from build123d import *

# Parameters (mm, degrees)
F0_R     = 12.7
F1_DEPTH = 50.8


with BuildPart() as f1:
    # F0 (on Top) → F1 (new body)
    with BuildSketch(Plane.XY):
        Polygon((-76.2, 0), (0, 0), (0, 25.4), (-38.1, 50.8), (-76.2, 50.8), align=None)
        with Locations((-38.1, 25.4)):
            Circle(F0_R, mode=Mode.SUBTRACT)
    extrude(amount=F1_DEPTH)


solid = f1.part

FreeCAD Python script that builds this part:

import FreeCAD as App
import Part
import Sketcher

V = App.Vector
Q = App.Units.Quantity

doc = App.newDocument("Part")
params = doc.addObject("Spreadsheet::Sheet", "Params")
for row, (alias, value) in enumerate([
    ("sketch1_diameter", "1 in"),
    ("sketch1_width", "3 in"),
    ("sketch1_height", "1 in"),
    ("sketch1_height2", "2 in"),
    ("sketch1_width2", "1.5 in"),
    ("pad1_length", "2 in"),
], start=1):
    params.set(f"A{row}", alias)
    params.set(f"B{row}", "=" + value)
    params.setAlias(f"B{row}", alias)

body = doc.addObject("PartDesign::Body", "Body")

# Sketch on XY plane
sketch1 = body.newObject("Sketcher::SketchObject", "Sketch")
sketch1.AttachmentSupport = (doc.getObject("XY_Plane"), [""])
sketch1.MapMode = "FlatFace"
sketch1.addGeometry(Part.LineSegment(V(-76, 0, 0), V(0, 0, 0)), False)
sketch1.addGeometry(Part.LineSegment(V(0, 0, 0), V(0, 25, 0)), False)
sketch1.addGeometry(Part.LineSegment(V(0, 25, 0), V(-38, 51, 0)), False)
sketch1.addGeometry(Part.LineSegment(V(-38, 51, 0), V(-76, 51, 0)), False)
sketch1.addGeometry(Part.LineSegment(V(-76, 51, 0), V(-76, 0, 0)), False)
sketch1.addGeometry(Part.Circle(V(-38, 25, 0), V(0, 0, 1), 13), False)
sketch1.addConstraint(Sketcher.Constraint("Coincident", 0, 2, 1, 1))
sketch1.addConstraint(Sketcher.Constraint("Coincident", 1, 2, 2, 1))
sketch1.addConstraint(Sketcher.Constraint("Coincident", 2, 2, 3, 1))
sketch1.addConstraint(Sketcher.Constraint("Coincident", 3, 2, 4, 1))
sketch1.addConstraint(Sketcher.Constraint("Coincident", 4, 2, 0, 1))
sketch1.addConstraint(Sketcher.Constraint("Horizontal", 0))
sketch1.addConstraint(Sketcher.Constraint("Vertical", 1))
sketch1.addConstraint(Sketcher.Constraint("Horizontal", 3))
sketch1.addConstraint(Sketcher.Constraint("Vertical", 4))
sketch1.addConstraint(Sketcher.Constraint("Coincident", 0, 2, -1, 1))
sketch1.addConstraint(Sketcher.Constraint("Horizontal", 5, 3, 1, 2))
sketch1.addConstraint(Sketcher.Constraint("Vertical", 5, 3, 2, 2))
sketch1.addConstraint(Sketcher.Constraint("Diameter", 5, Q("1 in")))
sketch1.addConstraint(Sketcher.Constraint("DistanceX", 0, 1, 0, 2, Q("3 in")))
sketch1.addConstraint(Sketcher.Constraint("DistanceY", 1, 1, 1, 2, Q("1 in")))
sketch1.addConstraint(Sketcher.Constraint("DistanceY", 4, 2, 4, 1, Q("2 in")))
sketch1.addConstraint(Sketcher.Constraint("DistanceX", 3, 2, 3, 1, Q("1.5 in")))
sketch1.setExpression("Constraints[12]", "Params.sketch1_diameter")
sketch1.setExpression("Constraints[13]", "Params.sketch1_width")
sketch1.setExpression("Constraints[14]", "Params.sketch1_height")
sketch1.setExpression("Constraints[15]", "Params.sketch1_height2")
sketch1.setExpression("Constraints[16]", "Params.sketch1_width2")
pad1 = body.newObject("PartDesign::Pad", "Pad")
pad1.Profile = sketch1
pad1.setExpression("Length", "Params.pad1_length")

doc.recompute()
